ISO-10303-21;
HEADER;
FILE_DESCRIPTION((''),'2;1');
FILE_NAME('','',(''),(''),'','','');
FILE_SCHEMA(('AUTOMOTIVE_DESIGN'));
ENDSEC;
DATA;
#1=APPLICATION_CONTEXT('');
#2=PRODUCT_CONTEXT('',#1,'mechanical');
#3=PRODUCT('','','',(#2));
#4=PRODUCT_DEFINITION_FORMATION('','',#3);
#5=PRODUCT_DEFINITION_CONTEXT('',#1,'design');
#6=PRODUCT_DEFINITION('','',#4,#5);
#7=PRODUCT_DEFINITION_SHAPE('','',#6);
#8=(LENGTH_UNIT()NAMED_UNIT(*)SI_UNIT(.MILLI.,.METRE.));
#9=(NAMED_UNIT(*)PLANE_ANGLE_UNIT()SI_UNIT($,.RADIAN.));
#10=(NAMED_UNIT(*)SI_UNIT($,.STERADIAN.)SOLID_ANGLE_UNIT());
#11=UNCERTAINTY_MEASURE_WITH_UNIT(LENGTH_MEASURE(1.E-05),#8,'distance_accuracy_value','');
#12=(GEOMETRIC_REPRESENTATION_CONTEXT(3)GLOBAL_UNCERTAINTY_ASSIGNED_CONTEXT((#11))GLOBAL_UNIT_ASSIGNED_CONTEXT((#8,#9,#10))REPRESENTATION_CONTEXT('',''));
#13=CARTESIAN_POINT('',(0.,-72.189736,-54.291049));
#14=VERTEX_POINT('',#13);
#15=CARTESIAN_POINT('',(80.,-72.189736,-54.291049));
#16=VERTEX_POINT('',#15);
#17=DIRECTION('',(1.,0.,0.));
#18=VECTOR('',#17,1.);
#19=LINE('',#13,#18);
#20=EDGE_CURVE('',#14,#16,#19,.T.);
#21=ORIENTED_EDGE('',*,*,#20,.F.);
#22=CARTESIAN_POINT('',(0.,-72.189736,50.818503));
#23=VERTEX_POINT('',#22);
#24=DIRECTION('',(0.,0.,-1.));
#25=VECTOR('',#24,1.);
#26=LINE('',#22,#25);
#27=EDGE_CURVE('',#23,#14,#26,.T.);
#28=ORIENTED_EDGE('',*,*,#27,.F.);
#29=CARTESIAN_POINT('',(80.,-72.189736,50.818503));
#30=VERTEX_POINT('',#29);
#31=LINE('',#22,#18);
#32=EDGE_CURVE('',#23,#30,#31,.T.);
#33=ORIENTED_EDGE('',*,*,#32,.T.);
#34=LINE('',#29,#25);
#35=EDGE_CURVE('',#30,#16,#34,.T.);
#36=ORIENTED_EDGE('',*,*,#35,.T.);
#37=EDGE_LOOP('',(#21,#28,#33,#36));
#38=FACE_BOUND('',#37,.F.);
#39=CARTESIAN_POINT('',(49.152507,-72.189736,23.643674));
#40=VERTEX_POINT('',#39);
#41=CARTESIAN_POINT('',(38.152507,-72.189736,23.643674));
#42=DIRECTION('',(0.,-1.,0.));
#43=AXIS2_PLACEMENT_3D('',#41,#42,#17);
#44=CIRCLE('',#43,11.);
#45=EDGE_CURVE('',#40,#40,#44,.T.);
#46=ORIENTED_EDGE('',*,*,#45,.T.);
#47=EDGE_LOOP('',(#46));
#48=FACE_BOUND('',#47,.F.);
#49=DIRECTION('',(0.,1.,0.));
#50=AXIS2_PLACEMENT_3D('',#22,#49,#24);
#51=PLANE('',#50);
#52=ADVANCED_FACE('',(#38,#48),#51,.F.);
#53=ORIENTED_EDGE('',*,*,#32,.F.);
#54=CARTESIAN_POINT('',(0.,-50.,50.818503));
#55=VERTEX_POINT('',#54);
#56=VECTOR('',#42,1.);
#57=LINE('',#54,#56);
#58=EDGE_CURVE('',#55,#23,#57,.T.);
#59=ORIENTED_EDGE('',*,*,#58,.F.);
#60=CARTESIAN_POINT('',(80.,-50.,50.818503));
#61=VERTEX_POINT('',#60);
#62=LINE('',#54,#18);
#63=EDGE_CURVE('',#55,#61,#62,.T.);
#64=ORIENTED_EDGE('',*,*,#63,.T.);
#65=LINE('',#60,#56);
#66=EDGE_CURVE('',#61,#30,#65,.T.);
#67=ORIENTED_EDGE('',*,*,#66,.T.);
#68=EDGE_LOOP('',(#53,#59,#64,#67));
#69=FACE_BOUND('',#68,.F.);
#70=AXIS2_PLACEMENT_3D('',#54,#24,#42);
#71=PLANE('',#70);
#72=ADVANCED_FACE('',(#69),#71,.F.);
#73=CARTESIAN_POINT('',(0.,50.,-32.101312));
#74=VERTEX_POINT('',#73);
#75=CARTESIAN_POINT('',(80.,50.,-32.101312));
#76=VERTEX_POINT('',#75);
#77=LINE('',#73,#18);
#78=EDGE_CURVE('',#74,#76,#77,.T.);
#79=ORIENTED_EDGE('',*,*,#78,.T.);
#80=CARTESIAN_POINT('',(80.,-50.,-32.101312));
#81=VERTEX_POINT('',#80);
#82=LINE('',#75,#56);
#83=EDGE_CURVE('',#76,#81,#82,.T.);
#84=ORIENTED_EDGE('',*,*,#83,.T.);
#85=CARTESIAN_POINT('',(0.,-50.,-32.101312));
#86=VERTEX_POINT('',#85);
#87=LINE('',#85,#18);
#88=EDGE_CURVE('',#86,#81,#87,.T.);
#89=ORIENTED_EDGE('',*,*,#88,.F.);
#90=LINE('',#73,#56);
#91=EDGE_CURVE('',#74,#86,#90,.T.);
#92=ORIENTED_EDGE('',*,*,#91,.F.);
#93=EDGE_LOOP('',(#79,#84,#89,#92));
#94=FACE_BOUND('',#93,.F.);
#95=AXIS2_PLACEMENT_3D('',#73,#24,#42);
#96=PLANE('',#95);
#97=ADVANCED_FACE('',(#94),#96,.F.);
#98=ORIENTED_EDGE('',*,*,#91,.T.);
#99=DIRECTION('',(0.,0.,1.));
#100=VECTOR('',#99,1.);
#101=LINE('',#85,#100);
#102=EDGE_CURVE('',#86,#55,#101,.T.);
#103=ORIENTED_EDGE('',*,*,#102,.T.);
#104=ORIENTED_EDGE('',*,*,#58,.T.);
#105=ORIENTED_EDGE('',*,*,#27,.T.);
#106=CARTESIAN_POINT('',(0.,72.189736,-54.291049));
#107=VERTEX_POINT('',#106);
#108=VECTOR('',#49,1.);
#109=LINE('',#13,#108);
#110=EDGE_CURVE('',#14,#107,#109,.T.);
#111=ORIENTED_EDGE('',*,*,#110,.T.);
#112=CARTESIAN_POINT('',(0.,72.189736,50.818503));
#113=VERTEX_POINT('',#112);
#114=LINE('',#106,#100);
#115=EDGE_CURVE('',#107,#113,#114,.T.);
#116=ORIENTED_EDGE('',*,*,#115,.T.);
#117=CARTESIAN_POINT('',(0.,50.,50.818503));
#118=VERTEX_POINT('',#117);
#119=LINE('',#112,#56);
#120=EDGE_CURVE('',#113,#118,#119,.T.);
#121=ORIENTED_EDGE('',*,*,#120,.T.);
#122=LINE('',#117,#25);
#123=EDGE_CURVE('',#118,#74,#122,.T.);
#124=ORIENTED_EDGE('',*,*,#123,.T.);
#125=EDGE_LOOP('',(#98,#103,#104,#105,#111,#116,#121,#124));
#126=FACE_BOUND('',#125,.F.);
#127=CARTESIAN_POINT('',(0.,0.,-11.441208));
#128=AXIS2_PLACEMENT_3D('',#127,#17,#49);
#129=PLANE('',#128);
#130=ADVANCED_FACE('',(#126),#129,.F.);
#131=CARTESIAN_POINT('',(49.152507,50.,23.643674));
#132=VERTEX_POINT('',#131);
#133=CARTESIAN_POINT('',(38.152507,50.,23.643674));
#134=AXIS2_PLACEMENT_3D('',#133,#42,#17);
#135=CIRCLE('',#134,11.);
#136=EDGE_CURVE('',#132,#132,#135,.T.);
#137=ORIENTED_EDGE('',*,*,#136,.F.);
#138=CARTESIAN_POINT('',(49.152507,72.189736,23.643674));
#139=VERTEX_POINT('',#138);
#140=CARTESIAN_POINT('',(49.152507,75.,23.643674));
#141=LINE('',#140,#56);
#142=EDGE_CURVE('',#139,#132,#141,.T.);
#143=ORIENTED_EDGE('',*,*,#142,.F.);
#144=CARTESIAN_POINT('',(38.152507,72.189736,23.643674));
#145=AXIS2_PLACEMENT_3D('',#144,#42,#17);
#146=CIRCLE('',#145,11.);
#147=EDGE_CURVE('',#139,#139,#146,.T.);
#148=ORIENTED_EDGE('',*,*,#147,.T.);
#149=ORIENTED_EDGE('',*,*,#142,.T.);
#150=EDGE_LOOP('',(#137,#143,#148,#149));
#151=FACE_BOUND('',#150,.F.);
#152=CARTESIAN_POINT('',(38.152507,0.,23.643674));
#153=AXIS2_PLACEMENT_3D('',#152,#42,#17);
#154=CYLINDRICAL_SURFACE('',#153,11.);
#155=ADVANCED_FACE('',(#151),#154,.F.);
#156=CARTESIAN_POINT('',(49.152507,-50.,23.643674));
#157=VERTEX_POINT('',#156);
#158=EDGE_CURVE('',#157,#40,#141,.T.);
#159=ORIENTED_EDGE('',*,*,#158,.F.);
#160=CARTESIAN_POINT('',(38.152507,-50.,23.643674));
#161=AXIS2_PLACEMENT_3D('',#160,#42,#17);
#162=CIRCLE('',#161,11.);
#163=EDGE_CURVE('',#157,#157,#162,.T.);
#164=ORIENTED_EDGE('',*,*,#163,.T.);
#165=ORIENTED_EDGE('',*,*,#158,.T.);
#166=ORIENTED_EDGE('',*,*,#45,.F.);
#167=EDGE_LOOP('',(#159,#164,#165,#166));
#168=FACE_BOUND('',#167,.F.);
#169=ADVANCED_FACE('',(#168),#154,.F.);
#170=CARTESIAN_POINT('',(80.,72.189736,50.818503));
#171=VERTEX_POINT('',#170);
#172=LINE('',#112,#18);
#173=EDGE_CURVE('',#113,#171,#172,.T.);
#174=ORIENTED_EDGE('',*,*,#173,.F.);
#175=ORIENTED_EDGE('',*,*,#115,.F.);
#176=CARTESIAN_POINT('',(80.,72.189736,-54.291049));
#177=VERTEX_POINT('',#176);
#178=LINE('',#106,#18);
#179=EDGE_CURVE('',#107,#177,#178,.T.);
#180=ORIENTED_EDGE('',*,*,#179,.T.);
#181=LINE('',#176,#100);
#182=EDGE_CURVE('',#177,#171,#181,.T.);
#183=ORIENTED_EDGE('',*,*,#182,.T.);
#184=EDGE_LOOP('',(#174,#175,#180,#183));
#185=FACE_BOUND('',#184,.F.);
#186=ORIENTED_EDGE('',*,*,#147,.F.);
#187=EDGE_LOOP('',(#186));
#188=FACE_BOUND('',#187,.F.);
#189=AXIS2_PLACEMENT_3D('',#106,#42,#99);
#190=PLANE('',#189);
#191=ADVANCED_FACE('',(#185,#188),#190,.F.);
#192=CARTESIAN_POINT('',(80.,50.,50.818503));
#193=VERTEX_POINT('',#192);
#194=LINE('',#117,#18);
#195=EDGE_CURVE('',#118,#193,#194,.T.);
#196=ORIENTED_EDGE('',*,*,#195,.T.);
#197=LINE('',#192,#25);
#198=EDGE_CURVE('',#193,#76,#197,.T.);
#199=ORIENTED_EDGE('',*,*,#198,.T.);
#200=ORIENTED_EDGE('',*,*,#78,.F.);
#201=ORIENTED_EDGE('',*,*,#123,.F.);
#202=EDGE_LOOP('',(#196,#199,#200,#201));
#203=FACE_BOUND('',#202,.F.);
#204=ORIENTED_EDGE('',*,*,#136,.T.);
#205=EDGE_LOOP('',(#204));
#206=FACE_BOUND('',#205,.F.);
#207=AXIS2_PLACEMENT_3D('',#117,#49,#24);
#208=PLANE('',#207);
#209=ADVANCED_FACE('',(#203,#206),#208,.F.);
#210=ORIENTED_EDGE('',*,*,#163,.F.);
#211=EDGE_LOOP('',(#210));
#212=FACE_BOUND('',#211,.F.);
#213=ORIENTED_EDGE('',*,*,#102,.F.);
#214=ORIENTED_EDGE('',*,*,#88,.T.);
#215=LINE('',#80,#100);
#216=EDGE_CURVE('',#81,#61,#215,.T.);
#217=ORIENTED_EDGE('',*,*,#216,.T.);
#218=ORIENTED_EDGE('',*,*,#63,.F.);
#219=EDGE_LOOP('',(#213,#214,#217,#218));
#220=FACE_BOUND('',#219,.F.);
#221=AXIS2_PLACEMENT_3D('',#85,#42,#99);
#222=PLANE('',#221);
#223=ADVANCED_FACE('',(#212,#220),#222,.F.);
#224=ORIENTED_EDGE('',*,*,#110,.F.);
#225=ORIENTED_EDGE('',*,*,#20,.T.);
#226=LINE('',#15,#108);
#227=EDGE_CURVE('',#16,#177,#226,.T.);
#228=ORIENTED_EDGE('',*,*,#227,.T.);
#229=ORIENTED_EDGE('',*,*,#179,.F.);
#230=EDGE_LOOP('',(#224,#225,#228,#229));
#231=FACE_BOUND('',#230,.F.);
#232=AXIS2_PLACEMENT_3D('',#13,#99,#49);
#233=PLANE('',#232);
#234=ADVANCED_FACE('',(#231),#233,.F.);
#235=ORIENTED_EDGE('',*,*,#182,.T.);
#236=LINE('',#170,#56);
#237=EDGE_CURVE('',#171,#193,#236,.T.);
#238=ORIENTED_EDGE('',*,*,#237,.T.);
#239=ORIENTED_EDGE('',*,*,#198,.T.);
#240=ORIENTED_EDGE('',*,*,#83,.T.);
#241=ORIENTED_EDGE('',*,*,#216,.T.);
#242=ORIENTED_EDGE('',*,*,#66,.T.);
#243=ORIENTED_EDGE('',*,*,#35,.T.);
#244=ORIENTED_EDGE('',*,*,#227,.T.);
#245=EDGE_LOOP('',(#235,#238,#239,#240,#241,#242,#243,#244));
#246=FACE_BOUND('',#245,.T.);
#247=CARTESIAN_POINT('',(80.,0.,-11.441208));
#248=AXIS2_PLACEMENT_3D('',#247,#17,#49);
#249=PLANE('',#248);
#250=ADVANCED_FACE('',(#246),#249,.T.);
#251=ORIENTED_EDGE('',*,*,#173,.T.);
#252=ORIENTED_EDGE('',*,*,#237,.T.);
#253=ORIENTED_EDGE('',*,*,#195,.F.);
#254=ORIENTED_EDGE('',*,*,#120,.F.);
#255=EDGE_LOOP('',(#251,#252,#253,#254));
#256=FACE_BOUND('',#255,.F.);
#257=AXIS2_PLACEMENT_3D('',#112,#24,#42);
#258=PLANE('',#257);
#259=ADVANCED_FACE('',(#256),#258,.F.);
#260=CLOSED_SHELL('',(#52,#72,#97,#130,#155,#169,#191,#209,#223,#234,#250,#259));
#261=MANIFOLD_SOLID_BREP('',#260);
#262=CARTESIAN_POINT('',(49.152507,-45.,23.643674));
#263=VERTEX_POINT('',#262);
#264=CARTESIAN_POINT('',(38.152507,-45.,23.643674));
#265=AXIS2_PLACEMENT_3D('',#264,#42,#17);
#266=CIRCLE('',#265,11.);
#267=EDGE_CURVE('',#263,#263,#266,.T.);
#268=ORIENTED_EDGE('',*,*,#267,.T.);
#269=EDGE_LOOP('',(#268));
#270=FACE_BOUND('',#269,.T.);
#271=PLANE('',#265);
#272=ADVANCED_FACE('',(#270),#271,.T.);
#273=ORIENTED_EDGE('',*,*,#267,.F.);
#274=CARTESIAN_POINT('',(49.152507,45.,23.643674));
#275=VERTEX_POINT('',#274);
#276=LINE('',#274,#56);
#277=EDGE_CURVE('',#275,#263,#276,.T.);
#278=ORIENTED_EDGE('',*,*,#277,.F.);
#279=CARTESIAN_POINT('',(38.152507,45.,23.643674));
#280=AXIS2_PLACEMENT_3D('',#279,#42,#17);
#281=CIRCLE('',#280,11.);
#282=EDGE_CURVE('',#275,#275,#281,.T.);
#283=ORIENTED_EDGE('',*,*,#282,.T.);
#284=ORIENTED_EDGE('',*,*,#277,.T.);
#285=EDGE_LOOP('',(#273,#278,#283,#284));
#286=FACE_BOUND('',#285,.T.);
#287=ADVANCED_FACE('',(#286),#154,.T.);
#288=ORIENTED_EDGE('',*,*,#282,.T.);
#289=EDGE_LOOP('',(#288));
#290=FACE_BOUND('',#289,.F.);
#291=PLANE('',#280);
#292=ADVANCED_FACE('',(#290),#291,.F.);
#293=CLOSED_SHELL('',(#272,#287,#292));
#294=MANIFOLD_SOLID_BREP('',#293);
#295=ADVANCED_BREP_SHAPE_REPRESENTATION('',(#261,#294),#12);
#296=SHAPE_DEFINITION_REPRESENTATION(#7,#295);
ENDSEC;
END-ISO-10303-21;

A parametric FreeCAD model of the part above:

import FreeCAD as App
import Part
import Sketcher

V = App.Vector
Q = App.Units.Quantity


def add_polygon(sketch, points):
    """Adds a closed chain of lines whose ends are joined by coincident constraints."""
    first, n = sketch.GeometryCount, len(points)
    for a, b in zip(points, points[1:] + points[:1]):
        sketch.addGeometry(Part.LineSegment(App.Vector(*a, 0), App.Vector(*b, 0)), False)
    for i in range(n):
        sketch.addConstraint(Sketcher.Constraint("Coincident", first + i, 2, first + (i + 1) % n, 1))

doc = App.newDocument("Part")
body = doc.addObject("PartDesign::Body", "Body")

# Sketch on YZ plane
sketch1 = doc.addObject("Sketcher::SketchObject", "Sketch")
body.addObject(sketch1)
sketch1.AttachmentSupport = (doc.YZ_Plane, [""])
sketch1.MapMode = "FlatFace"
add_polygon(sketch1, [(-50, -32.101312), (-50, 50.818503), (-72.189736, 50.818503), (-72.189736, -54.291049), (72.189736, -54.291049), (72.189736, 50.818503), (50, 50.818503), (50, -32.101312)])  # lines 0-7
sketch1.addConstraint([
    Sketcher.Constraint("Vertical", 0),
    Sketcher.Constraint("Horizontal", 1),
    Sketcher.Constraint("Vertical", 2),
    Sketcher.Constraint("Horizontal", 3),
    Sketcher.Constraint("Vertical", 4),
    Sketcher.Constraint("Horizontal", 5),
    Sketcher.Constraint("Vertical", 6),
    Sketcher.Constraint("Horizontal", 7),
    Sketcher.Constraint("Symmetric", 1, 2, 4, 2, -2),
    Sketcher.Constraint("Equal", 1, 5),
    Sketcher.Constraint("DistanceX", 7, 2, 7, 1, Q("100 mm")),
    Sketcher.Constraint("DistanceX", 3, 1, 3, 2, Q("144.379472 mm")),
    Sketcher.Constraint("DistanceY", 0, 1, 0, 2, Q("82.919815 mm")),
    Sketcher.Constraint("DistanceY", 2, 2, 2, 1, Q("105.109552 mm")),
    Sketcher.Constraint("DistanceY", 2, 2, -1, 1, Q("54.291049 mm")),
])
pad1 = doc.addObject("PartDesign::Pad", "Pad")
body.addObject(pad1)
pad1.Profile = sketch1
pad1.Length = 80

# Sketch on XZ plane
sketch2 = doc.addObject("Sketcher::SketchObject", "Sketch001")
body.addObject(sketch2)
sketch2.AttachmentSupport = (doc.XZ_Plane, [""])
sketch2.MapMode = "FlatFace"
sketch2.addGeometry(Part.Circle(V(38.152507, 23.643674, 0), V(0, 0, 1), 11), False)
sketch2.addConstraint([
    Sketcher.Constraint("Diameter", 0, Q("22 mm")),
    Sketcher.Constraint("DistanceX", -1, 1, 0, 3, Q("38.152507 mm")),
    Sketcher.Constraint("DistanceY", -1, 1, 0, 3, Q("23.643674 mm")),
])
pocket1 = doc.addObject("PartDesign::Pocket", "Pocket")
body.addObject(pocket1)
pocket1.Profile = sketch2
pocket1.Length = 150
pocket1.Midplane = True
body2 = doc.addObject("PartDesign::Body", "Body001")

# Sketch on XZ plane
sketch3 = doc.addObject("Sketcher::SketchObject", "Sketch002")
body2.addObject(sketch3)
sketch3.AttachmentSupport = (doc.getObject("XZ_Plane001"), [""])
sketch3.MapMode = "FlatFace"
sketch3.addGeometry(Part.Circle(V(38.152507, 23.643674, 0), V(0, 0, 1), 11), False)
sketch3.addConstraint([
    Sketcher.Constraint("Diameter", 0, Q("22 mm")),
    Sketcher.Constraint("DistanceX", -1, 1, 0, 3, Q("38.152507 mm")),
    Sketcher.Constraint("DistanceY", -1, 1, 0, 3, Q("23.643674 mm")),
])
pad2 = doc.addObject("PartDesign::Pad", "Pad001")
body2.addObject(pad2)
pad2.Profile = sketch3
pad2.Length = 90
pad2.Midplane = True

doc.recompute()
